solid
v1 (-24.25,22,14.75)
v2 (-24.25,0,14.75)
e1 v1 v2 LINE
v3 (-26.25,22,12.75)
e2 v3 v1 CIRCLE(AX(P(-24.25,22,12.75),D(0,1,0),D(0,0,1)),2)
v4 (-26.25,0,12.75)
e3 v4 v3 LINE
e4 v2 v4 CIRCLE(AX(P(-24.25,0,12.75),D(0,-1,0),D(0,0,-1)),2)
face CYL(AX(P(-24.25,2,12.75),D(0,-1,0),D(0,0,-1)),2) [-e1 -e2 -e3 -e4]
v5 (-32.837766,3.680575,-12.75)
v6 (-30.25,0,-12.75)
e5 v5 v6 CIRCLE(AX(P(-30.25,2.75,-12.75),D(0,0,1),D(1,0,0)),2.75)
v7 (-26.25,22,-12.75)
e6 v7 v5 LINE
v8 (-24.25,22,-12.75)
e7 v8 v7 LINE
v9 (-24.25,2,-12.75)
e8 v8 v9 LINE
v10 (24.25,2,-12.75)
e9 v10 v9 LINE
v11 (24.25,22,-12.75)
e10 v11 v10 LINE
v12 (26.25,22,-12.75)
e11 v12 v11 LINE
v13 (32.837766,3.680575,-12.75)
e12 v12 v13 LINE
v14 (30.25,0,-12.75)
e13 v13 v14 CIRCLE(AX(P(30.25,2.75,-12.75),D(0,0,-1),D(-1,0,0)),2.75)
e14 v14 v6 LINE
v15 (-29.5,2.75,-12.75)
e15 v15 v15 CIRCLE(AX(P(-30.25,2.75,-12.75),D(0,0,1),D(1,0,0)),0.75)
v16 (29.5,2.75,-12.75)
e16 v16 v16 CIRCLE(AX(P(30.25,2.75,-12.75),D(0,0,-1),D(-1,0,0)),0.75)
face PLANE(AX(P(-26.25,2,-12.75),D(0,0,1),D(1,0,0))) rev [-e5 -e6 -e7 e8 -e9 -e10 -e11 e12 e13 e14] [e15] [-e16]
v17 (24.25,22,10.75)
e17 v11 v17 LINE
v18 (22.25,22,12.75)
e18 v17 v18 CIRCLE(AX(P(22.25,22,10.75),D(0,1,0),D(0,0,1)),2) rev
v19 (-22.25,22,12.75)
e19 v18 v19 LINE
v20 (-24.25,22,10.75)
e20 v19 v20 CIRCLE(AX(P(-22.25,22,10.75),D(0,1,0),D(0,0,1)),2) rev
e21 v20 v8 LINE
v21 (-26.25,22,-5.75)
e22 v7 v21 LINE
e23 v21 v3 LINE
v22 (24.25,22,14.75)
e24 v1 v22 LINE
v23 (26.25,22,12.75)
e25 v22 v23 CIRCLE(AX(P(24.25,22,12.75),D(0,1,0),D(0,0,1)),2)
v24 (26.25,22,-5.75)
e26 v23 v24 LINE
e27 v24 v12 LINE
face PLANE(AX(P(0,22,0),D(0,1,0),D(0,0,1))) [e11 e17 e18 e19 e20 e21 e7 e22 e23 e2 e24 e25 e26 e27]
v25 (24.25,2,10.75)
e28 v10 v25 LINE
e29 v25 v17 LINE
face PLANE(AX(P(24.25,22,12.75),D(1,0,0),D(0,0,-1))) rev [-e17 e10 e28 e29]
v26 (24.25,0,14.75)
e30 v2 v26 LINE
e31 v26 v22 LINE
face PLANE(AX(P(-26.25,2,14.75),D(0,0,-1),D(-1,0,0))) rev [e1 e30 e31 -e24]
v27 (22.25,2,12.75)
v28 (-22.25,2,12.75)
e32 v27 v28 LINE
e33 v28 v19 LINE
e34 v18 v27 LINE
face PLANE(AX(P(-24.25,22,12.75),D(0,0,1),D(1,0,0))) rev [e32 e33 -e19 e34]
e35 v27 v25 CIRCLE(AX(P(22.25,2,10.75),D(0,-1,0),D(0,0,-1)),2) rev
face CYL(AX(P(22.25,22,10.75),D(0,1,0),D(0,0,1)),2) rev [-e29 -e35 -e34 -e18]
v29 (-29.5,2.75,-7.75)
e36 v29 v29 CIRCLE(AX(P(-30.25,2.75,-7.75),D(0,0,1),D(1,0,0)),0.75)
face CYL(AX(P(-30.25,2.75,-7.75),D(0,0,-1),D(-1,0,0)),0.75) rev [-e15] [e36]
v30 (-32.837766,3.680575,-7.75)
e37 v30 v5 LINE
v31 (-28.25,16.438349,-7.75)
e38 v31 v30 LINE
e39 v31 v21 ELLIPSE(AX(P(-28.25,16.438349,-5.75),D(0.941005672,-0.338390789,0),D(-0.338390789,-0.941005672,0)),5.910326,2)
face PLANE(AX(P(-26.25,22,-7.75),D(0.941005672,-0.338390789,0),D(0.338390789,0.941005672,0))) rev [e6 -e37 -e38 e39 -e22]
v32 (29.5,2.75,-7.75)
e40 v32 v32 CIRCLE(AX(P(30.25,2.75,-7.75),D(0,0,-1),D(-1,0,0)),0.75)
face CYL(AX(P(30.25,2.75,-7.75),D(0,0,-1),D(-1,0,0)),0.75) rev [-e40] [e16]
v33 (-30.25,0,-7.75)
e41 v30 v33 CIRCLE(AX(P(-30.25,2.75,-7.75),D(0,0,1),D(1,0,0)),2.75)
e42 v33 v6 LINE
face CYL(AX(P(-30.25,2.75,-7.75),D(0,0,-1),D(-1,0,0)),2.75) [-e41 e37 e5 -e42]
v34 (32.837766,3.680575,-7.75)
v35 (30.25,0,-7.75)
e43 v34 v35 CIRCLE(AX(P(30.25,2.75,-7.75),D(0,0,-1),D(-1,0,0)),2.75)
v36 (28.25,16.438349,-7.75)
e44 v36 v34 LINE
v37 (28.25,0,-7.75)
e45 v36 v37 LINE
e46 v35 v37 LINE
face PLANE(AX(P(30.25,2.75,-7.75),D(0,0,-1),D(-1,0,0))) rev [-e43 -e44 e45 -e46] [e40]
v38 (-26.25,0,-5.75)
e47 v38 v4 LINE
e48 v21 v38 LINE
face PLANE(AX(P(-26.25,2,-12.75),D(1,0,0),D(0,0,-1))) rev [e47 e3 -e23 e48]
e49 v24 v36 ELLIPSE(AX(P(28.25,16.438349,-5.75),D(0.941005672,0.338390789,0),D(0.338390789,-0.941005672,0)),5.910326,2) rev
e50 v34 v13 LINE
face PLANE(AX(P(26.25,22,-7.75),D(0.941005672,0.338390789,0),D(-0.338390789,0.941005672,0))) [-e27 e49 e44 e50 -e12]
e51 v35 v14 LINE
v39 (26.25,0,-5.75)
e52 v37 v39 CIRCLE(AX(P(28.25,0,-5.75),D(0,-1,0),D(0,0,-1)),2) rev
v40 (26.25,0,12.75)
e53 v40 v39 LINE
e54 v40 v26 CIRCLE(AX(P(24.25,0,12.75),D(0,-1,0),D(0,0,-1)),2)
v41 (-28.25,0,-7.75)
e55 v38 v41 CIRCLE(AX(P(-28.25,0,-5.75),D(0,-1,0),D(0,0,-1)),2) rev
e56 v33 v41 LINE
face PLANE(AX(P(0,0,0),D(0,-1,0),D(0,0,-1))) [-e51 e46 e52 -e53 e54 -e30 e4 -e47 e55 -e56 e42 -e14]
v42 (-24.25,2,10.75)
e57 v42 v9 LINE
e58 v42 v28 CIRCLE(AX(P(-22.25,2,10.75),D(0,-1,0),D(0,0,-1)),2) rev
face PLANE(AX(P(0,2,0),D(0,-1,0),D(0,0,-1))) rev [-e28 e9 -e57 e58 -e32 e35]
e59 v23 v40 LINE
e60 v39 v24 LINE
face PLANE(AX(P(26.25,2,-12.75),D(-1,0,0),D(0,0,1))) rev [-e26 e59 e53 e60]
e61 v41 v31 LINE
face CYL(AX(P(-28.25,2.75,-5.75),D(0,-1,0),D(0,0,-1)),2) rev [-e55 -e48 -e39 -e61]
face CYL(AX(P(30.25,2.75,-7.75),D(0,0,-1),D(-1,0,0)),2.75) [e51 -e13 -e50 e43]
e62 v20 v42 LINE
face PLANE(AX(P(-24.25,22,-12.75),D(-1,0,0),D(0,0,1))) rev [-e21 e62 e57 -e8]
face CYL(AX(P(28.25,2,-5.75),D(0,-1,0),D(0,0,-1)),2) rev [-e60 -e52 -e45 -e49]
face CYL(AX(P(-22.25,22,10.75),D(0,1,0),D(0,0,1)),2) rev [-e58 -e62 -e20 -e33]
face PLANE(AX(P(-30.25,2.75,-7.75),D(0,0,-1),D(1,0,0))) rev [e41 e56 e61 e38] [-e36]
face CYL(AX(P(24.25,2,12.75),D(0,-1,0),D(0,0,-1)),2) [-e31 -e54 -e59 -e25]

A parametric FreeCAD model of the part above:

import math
import FreeCAD as App
import Part
import Sketcher
Q = App.Units.Quantity


def edges_at(feature, points):
    """Names of the edges that pass closest to the given points."""
    edges = feature.Shape.Edges
    near = lambda p: min(range(len(edges)), key=lambda i: edges[i].distToShape(Part.Vertex(*p))[0])
    return sorted({f"Edge{near(p) + 1}" for p in points})

doc = App.newDocument("Part")
params = doc.addObject("Spreadsheet::Sheet", "Params")
for row, (alias, value) in enumerate([
    ("sketch1_width", "52.5 mm"),
    ("sketch1_height", "27.5 mm"),
    ("pad1_length", "2 mm"),
    ("sketch2_width", "2 mm"),
    ("sketch2_width2", "48.5 mm"),
    ("sketch2_height", "27.5 mm"),
    ("sketch2_height2", "25.5 mm"),
    ("pad2_length", "20 mm"),
    ("fillet_radius", "2 mm"),
    ("sketch3_diameter", "1.5 mm"),
    ("sketch3_width", "4 mm"),
    ("sketch3_height", "22 mm"),
    ("sketch3_radius", "2.75 mm"),
    ("pad3_length", "5 mm"),
    ("fillet2_radius", "2 mm"),
], start=1):
    params.set(f"A{row}", alias)
    params.set(f"B{row}", "=" + value)
    params.setAlias(f"B{row}", alias)

body = doc.addObject("PartDesign::Body", "Body")

sketch1 = body.newObject("Sketcher::SketchObject", "Sketch")
sketch1.AttachmentSupport = (doc.getObject("XZ_Plane"), [""])
sketch1.MapMode = "FlatFace"
sketch1.addGeometry([
    Part.LineSegment(App.Vector(-26, -13, 0), App.Vector(-26, 15, 0)),
    Part.LineSegment(App.Vector(-26, 15, 0), App.Vector(26, 15, 0)),
    Part.LineSegment(App.Vector(26, 15, 0), App.Vector(26, -13, 0)),
    Part.LineSegment(App.Vector(26, -13, 0), App.Vector(-26, -13, 0)),
], False)
sketch1.addConstraint([
    Sketcher.Constraint("Coincident", 0, 2, 1, 1),
    Sketcher.Constraint("Coincident", 1, 2, 2, 1),
    Sketcher.Constraint("Coincident", 2, 2, 3, 1),
    Sketcher.Constraint("Coincident", 3, 2, 0, 1),
    Sketcher.Constraint("Vertical", 0),
    Sketcher.Constraint("Horizontal", 1),
    Sketcher.Constraint("Vertical", 2),
    Sketcher.Constraint("Horizontal", 3),
    Sketcher.Constraint("DistanceX", 1, 1, 1, 2, Q("52.5 mm")),
    Sketcher.Constraint("DistanceY", 0, 1, 0, 2, Q("27.5 mm")),
    Sketcher.Constraint("DistanceX", 0, 2, -1, 1, Q("26.25 mm")),
    Sketcher.Constraint("DistanceY", -1, 1, 0, 2, Q("14.75 mm")),
])
sketch1.setExpression("Constraints[8]", "Params.sketch1_width")
sketch1.setExpression("Constraints[9]", "Params.sketch1_height")
pad1 = body.newObject("PartDesign::Pad", "Pad")
pad1.Profile = sketch1
pad1.setExpression("Length", "Params.pad1_length")
pad1.Reversed = True

sketch2 = body.newObject("Sketcher::SketchObject", "Sketch001")
sketch2.AttachmentSupport = (doc.getObject("XZ_Plane"), [""])
sketch2.MapMode = "FlatFace"
sketch2.AttachmentOffset = App.Placement(App.Vector(0, 0, -2), App.Rotation())
sketch2.addGeometry([
    Part.LineSegment(App.Vector(26.2, 14.8, 0), App.Vector(26.2, -12.8, 0)),
    Part.LineSegment(App.Vector(26.2, -12.8, 0), App.Vector(24.2, -12.8, 0)),
    Part.LineSegment(App.Vector(24.2, -12.8, 0), App.Vector(24.2, 12.8, 0)),
    Part.LineSegment(App.Vector(24.2, 12.8, 0), App.Vector(-24.2, 12.8, 0)),
    Part.LineSegment(App.Vector(-24.2, 12.8, 0), App.Vector(-24.2, -12.8, 0)),
    Part.LineSegment(App.Vector(-24.2, -12.8, 0), App.Vector(-26.2, -12.8, 0)),
    Part.LineSegment(App.Vector(-26.2, -12.8, 0), App.Vector(-26.2, 14.8, 0)),
    Part.LineSegment(App.Vector(-26.2, 14.8, 0), App.Vector(26.2, 14.8, 0)),
], False)
sketch2.addConstraint([
    Sketcher.Constraint("Coincident", 0, 2, 1, 1),
    Sketcher.Constraint("Coincident", 1, 2, 2, 1),
    Sketcher.Constraint("Coincident", 2, 2, 3, 1),
    Sketcher.Constraint("Coincident", 3, 2, 4, 1),
    Sketcher.Constraint("Coincident", 4, 2, 5, 1),
    Sketcher.Constraint("Coincident", 5, 2, 6, 1),
    Sketcher.Constraint("Coincident", 6, 2, 7, 1),
    Sketcher.Constraint("Coincident", 7, 2, 0, 1),
    Sketcher.Constraint("Vertical", 0),
    Sketcher.Constraint("Horizontal", 1),
    Sketcher.Constraint("Vertical", 2),
    Sketcher.Constraint("Horizontal", 3),
    Sketcher.Constraint("Vertical", 4),
    Sketcher.Constraint("Horizontal", 5),
    Sketcher.Constraint("Vertical", 6),
    Sketcher.Constraint("Horizontal", 7),
    Sketcher.Constraint("Symmetric", 1, 2, 3, 2, -1, 1),
    Sketcher.Constraint("Symmetric", 0, 2, 5, 2, -2),
    Sketcher.Constraint("DistanceX", 1, 2, 1, 1, Q("2 mm")),
    Sketcher.Constraint("DistanceX", 3, 2, 3, 1, Q("48.5 mm")),
    Sketcher.Constraint("DistanceY", 0, 2, 0, 1, Q("27.5 mm")),
    Sketcher.Constraint("DistanceY", 2, 1, 2, 2, Q("25.5 mm")),
])
sketch2.setExpression("Constraints[18]", "Params.sketch2_width")
sketch2.setExpression("Constraints[19]", "Params.sketch2_width2")
sketch2.setExpression("Constraints[20]", "Params.sketch2_height")
sketch2.setExpression("Constraints[21]", "Params.sketch2_height2")
pad2 = body.newObject("PartDesign::Pad", "Pad001")
pad2.Profile = sketch2
pad2.setExpression("Length", "Params.pad2_length")
pad2.Reversed = True
doc.recompute()

fillet = body.newObject("PartDesign::Fillet", "Fillet")
fillet.Base = (pad2, edges_at(pad2, [
    (24.25, 12, 12.75),
    (-24.25, 12, 12.75),
    (26.25, 11, 14.75),
    (-26.25, 11, 14.75),
]))
fillet.setExpression("Radius", "Params.fillet_radius")

sketch3 = body.newObject("Sketcher::SketchObject", "Sketch002")
sketch3.AttachmentSupport = (doc.getObject("XY_Plane"), [""])
sketch3.MapMode = "FlatFace"
sketch3.AttachmentOffset = App.Placement(App.Vector(0, 0, -12.75), App.Rotation())
sketch3.addGeometry([
    Part.LineSegment(App.Vector(26.2, 22, 0), App.Vector(32.8, 3.7, 0)),
    Part.ArcOfCircle(Part.Circle(App.Vector(30.2, 2.8, 0), App.Vector(0, 0, 1), 2.8), math.radians(-90), math.radians(20)),
    Part.LineSegment(App.Vector(30.2, 0, 0), App.Vector(26.2, 0, 0)),
    Part.LineSegment(App.Vector(26.2, 0, 0), App.Vector(26.2, 22, 0)),
    Part.Circle(App.Vector(30.2, 2.8, 0), App.Vector(0, 0, 1), 0.8),
], False)
sketch3.addConstraint([
    Sketcher.Constraint("Tangent", 0, 2, 1, 2),
    Sketcher.Constraint("Tangent", 1, 1, 2, 1),
    Sketcher.Constraint("Coincident", 2, 2, 3, 1),
    Sketcher.Constraint("Coincident", 3, 2, 0, 1),
    Sketcher.Constraint("Horizontal", 2),
    Sketcher.Constraint("Vertical", 3),
    Sketcher.Constraint("Coincident", 4, 3, 1, 3),
    Sketcher.Constraint("PointOnObject", 1, 1, -1),
    Sketcher.Constraint("Diameter", 4, Q("1.5 mm")),
    Sketcher.Constraint("DistanceX", 2, 2, 2, 1, Q("4 mm")),
    Sketcher.Constraint("DistanceY", 3, 1, 3, 2, Q("22 mm")),
    Sketcher.Constraint("Radius", 1, Q("2.75 mm")),
    Sketcher.Constraint("DistanceX", -1, 1, 1, 3, Q("30.25 mm")),
])
sketch3.setExpression("Constraints[8]", "Params.sketch3_diameter")
sketch3.setExpression("Constraints[9]", "Params.sketch3_width")
sketch3.setExpression("Constraints[10]", "Params.sketch3_height")
sketch3.setExpression("Constraints[11]", "Params.sketch3_radius")
pad3 = body.newObject("PartDesign::Pad", "Pad002")
pad3.Profile = sketch3
pad3.setExpression("Length", "Params.pad3_length")
doc.recompute()

mirrored = body.newObject("PartDesign::Mirrored", "Mirrored")
mirrored.Originals = [pad3]
mirrored.MirrorPlane = (doc.getObject("YZ_Plane"), [""])
body.Tip = mirrored
doc.recompute()

fillet2 = body.newObject("PartDesign::Fillet", "Fillet001")
fillet2.Base = (mirrored, edges_at(mirrored, [(26.25, 11, -7.75), (-26.25, 11, -7.75)]))
fillet2.setExpression("Radius", "Params.fillet2_radius")

doc.recompute()
